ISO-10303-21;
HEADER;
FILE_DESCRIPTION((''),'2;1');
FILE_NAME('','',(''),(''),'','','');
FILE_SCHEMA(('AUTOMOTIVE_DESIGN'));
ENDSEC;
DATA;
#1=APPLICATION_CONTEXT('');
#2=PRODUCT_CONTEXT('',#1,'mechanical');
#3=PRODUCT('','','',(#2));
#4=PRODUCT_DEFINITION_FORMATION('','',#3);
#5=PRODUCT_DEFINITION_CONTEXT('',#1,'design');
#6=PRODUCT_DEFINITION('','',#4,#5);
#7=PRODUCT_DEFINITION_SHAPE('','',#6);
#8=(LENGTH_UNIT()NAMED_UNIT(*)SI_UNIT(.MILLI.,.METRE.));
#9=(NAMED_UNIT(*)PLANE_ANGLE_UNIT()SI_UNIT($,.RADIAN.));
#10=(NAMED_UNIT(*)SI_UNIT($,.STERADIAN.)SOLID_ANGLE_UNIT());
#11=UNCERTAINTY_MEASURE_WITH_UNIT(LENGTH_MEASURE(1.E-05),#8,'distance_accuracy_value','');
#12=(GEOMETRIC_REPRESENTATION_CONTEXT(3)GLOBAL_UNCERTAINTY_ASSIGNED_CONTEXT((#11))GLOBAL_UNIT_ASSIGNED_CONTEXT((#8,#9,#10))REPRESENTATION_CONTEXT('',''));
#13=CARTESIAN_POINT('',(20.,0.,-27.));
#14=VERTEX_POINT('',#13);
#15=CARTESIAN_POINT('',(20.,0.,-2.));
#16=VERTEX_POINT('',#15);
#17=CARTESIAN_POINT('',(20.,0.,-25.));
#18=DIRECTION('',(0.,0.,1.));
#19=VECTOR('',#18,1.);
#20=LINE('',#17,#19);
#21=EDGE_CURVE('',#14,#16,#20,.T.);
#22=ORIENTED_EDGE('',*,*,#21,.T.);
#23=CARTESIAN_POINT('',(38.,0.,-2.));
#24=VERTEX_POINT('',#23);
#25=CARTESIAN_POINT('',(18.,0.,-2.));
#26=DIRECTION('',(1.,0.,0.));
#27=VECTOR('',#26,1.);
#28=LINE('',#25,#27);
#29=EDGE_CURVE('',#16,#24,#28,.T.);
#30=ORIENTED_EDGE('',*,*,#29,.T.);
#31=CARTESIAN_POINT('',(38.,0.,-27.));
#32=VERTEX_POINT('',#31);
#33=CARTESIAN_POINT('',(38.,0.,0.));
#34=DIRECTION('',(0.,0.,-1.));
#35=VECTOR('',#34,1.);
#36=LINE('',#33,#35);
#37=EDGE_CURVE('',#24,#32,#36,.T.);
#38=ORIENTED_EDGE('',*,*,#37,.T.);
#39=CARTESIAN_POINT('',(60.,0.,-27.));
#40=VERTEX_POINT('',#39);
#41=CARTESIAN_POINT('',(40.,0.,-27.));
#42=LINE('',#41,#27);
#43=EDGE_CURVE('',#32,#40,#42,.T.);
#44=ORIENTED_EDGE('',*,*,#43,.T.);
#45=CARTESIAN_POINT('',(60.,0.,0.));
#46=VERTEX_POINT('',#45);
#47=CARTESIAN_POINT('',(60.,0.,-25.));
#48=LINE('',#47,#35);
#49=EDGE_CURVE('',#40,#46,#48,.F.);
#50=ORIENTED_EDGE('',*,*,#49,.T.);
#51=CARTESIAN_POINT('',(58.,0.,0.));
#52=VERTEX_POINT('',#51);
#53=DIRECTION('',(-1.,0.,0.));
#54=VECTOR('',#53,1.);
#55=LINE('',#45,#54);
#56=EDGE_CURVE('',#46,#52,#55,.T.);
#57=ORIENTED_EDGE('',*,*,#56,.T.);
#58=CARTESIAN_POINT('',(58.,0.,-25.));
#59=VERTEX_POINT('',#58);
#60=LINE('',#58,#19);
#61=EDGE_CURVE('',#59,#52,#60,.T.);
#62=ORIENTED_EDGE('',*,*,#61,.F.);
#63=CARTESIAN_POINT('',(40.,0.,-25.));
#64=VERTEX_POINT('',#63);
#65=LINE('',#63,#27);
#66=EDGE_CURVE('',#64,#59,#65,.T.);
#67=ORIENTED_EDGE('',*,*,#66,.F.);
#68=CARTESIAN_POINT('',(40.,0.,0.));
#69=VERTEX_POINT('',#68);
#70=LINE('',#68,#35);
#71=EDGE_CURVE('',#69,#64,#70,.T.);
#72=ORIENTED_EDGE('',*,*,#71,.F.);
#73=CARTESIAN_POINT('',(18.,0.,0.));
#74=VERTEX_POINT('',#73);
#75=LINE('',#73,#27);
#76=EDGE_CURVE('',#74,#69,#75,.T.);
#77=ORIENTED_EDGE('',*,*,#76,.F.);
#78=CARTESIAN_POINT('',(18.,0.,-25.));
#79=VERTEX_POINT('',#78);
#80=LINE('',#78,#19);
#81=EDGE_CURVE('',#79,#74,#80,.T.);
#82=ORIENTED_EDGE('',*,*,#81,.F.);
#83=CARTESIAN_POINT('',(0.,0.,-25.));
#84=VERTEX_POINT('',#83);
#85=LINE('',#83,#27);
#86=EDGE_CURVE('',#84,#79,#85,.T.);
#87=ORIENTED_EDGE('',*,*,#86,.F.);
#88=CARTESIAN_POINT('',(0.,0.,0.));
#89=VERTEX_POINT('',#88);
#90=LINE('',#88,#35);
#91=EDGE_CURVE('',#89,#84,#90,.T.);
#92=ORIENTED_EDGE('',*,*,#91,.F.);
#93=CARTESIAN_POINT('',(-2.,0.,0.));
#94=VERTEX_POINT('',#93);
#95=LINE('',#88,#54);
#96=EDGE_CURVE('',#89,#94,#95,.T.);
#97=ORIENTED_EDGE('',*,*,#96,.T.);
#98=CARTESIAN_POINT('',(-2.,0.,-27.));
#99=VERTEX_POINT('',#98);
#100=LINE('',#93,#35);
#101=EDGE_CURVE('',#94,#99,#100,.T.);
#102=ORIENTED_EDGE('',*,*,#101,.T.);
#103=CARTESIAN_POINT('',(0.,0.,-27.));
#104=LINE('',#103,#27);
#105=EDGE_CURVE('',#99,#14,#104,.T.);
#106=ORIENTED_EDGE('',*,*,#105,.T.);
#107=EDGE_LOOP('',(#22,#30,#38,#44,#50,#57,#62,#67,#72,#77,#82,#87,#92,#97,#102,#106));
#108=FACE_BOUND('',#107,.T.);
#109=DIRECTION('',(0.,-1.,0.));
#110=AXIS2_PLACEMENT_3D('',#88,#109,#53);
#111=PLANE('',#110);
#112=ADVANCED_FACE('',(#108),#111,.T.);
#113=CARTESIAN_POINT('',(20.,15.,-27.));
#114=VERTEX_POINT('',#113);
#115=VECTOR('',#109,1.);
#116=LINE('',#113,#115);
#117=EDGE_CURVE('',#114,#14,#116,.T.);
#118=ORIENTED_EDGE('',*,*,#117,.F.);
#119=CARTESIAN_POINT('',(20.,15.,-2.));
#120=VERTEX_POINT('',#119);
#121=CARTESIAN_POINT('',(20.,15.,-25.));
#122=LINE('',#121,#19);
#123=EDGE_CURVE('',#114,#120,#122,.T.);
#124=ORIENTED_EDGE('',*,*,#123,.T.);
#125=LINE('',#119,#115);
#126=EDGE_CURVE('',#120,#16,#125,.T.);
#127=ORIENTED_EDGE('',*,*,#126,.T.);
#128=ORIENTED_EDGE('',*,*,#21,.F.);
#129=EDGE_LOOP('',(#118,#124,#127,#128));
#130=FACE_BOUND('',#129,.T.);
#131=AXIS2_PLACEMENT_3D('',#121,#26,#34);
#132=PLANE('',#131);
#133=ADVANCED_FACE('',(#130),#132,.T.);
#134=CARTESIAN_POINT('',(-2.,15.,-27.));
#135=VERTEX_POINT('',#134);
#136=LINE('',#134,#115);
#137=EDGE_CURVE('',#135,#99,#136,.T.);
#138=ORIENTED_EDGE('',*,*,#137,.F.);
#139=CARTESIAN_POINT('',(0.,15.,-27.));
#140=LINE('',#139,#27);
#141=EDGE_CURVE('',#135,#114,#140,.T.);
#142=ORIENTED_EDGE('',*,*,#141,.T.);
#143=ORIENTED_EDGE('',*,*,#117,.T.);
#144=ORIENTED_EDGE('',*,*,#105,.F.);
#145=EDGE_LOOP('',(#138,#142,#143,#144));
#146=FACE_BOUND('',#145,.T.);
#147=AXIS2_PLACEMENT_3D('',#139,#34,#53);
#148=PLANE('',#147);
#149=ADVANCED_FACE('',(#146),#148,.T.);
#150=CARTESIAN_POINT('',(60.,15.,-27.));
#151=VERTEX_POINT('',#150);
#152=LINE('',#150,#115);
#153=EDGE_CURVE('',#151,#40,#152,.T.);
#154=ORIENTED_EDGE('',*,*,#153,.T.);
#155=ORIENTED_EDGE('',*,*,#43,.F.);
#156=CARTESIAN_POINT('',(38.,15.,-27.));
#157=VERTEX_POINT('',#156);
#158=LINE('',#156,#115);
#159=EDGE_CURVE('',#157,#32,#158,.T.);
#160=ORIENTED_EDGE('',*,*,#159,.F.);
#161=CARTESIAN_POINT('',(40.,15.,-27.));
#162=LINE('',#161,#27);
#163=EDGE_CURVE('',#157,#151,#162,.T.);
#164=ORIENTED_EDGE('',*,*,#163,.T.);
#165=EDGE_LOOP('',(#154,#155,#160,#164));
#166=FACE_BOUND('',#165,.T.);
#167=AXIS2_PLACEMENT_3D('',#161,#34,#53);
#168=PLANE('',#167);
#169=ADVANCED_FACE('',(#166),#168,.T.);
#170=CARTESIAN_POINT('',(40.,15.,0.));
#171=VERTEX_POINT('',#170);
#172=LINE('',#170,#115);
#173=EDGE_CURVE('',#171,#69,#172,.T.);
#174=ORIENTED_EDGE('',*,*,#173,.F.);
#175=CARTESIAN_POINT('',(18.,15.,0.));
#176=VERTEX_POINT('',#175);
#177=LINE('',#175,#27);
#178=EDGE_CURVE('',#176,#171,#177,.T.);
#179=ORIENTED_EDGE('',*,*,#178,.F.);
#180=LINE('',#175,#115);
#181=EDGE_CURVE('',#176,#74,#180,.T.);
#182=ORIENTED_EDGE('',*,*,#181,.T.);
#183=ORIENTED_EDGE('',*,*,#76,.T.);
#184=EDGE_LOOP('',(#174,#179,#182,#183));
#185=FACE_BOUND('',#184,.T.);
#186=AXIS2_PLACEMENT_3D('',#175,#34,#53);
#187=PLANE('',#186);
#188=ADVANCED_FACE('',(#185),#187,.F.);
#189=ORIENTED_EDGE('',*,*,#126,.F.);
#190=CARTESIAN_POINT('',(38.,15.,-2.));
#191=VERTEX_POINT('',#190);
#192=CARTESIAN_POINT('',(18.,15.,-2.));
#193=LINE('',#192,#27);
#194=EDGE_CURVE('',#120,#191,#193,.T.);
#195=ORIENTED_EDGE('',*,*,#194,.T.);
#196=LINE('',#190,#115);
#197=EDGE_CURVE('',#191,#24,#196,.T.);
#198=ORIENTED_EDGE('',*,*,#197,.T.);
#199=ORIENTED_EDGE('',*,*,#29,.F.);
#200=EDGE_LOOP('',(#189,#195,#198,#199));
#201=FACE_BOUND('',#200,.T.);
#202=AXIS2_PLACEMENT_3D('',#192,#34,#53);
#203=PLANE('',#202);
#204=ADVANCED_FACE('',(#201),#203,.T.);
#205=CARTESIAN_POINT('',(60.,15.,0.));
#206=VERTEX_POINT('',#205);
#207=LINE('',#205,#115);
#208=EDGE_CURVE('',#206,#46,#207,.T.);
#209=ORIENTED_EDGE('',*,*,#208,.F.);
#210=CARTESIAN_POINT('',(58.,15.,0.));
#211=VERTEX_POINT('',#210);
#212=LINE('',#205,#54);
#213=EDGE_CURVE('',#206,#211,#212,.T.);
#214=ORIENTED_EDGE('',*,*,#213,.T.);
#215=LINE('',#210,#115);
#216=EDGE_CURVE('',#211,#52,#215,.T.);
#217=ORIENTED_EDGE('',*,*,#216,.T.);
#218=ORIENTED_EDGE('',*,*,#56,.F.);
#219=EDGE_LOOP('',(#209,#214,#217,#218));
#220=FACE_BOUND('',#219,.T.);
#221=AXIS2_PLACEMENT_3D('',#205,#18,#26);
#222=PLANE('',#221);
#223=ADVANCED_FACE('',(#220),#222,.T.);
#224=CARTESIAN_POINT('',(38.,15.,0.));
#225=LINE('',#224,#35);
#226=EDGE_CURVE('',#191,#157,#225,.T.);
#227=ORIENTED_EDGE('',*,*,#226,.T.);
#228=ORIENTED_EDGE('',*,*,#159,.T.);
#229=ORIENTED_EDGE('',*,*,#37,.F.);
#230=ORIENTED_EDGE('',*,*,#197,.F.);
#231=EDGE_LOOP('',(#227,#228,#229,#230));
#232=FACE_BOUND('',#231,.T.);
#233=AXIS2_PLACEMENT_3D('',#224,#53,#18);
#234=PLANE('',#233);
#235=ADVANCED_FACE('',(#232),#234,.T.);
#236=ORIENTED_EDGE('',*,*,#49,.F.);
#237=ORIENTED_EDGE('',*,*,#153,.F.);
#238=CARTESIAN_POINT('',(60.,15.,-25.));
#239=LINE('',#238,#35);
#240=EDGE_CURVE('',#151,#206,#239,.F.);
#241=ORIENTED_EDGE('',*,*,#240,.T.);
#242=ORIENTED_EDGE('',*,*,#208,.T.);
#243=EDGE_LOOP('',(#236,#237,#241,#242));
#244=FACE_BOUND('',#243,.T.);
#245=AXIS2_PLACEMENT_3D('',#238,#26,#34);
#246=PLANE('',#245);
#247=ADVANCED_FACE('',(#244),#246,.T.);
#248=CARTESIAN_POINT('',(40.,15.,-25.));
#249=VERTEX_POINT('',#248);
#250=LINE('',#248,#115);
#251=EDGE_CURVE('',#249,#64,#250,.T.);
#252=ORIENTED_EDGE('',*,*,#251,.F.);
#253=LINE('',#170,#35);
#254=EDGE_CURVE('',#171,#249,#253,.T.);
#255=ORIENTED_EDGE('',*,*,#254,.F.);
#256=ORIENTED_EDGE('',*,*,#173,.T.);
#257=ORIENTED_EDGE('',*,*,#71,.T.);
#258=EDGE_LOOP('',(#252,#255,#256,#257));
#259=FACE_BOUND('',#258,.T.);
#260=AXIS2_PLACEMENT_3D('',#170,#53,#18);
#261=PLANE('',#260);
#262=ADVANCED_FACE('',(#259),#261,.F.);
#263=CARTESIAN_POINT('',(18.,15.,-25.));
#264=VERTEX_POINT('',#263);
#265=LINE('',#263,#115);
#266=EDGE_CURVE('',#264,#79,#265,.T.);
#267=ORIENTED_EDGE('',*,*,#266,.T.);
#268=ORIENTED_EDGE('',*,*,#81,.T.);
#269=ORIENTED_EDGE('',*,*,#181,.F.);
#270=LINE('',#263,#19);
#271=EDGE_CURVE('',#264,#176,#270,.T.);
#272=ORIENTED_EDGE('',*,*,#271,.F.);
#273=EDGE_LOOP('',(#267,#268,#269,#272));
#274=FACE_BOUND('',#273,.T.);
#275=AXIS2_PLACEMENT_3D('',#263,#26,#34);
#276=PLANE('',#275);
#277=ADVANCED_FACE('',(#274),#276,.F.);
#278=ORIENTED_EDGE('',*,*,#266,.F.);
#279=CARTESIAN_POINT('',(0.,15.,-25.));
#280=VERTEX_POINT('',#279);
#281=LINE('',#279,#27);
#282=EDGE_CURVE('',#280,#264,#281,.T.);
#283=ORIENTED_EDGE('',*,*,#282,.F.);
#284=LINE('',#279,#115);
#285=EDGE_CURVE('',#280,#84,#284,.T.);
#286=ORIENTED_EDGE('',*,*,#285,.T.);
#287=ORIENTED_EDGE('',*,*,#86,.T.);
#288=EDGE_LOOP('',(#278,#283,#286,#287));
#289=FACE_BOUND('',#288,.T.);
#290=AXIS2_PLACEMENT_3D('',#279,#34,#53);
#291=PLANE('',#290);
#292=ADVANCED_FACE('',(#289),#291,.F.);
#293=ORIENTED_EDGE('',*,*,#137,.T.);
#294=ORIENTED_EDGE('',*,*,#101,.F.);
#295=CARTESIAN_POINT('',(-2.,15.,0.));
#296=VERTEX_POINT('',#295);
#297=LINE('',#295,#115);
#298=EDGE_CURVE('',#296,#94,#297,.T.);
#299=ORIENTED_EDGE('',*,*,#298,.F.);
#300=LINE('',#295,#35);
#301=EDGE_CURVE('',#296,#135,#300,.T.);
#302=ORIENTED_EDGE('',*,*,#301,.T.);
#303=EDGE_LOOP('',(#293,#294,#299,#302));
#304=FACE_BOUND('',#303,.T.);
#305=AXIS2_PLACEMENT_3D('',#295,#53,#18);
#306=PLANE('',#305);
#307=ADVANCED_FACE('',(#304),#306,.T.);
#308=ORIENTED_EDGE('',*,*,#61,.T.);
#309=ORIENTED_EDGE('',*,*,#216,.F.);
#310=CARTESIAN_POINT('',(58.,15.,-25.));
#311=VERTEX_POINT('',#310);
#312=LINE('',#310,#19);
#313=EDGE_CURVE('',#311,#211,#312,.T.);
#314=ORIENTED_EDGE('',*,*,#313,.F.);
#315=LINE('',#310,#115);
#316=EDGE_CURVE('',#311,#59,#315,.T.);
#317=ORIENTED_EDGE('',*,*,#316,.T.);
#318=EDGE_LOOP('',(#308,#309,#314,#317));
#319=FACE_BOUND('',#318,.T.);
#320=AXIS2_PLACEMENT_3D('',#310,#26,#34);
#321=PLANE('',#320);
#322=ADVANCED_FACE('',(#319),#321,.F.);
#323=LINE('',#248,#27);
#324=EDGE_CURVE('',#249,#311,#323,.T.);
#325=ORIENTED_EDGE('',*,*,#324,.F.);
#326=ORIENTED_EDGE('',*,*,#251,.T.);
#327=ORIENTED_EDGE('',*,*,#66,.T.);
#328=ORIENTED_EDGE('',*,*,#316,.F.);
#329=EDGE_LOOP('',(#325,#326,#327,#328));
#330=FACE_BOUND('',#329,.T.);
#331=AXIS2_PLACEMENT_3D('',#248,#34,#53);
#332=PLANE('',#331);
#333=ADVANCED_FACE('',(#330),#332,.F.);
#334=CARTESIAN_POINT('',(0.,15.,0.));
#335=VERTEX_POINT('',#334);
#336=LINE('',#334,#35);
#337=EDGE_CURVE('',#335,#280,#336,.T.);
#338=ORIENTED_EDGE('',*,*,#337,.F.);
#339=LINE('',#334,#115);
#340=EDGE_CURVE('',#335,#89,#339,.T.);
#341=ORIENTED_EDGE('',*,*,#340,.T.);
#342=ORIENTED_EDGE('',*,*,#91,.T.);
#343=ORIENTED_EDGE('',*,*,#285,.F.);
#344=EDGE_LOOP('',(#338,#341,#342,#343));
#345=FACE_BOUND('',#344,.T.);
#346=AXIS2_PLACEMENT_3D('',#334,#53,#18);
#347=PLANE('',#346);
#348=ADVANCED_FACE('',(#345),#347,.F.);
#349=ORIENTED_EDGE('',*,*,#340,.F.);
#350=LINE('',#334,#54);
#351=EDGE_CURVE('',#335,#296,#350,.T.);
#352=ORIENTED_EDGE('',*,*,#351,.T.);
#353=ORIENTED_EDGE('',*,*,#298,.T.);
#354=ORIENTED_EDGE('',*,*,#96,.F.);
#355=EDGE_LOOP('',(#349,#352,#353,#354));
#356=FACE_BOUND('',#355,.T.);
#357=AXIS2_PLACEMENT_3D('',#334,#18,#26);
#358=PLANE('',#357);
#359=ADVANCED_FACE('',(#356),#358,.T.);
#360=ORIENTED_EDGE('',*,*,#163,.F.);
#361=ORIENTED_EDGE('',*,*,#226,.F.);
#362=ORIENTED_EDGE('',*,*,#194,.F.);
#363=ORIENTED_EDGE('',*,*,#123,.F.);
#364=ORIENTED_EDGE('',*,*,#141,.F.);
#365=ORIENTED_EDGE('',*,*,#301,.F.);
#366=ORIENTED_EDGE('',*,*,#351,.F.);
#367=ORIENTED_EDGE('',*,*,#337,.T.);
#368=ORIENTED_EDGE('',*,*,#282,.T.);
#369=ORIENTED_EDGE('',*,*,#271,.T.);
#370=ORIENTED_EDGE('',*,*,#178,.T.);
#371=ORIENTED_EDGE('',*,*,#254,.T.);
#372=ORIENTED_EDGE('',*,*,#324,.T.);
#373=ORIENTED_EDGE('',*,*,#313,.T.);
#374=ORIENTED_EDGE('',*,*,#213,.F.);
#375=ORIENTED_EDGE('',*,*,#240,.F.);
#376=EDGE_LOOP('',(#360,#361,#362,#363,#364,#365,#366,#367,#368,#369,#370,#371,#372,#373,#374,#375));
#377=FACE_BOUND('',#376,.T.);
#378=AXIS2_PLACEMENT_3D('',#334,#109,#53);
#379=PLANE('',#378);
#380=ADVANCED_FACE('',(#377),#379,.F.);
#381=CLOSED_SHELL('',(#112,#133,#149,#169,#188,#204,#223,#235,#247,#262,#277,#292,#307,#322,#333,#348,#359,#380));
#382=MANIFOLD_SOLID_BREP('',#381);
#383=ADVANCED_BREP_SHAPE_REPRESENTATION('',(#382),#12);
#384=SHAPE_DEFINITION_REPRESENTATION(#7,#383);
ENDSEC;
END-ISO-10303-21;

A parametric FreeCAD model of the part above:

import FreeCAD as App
import Part
import Sketcher
Q = App.Units.Quantity

doc = App.newDocument("Part")
body = doc.addObject("PartDesign::Body", "Body")

# Sketch on XZ plane
sketch1 = body.newObject("Sketcher::SketchObject", "Sketch")
sketch1.AttachmentSupport = (doc.getObject("XZ_Plane"), [""])
sketch1.MapMode = "FlatFace"
sketch1.addGeometry([
    Part.LineSegment(App.Vector(0, 0, 0), App.Vector(0, -25, 0)),  # 0
    Part.LineSegment(App.Vector(0, -25, 0), App.Vector(18, -25, 0)),  # 1
    Part.LineSegment(App.Vector(18, -25, 0), App.Vector(18, 0, 0)),  # 2
    Part.LineSegment(App.Vector(18, 0, 0), App.Vector(40, 0, 0)),  # 3
    Part.LineSegment(App.Vector(40, 0, 0), App.Vector(40, -25, 0)),  # 4
    Part.LineSegment(App.Vector(40, -25, 0), App.Vector(58, -25, 0)),  # 5
    Part.LineSegment(App.Vector(58, -25, 0), App.Vector(58, 0, 0)),  # 6
    Part.LineSegment(App.Vector(58, 0, 0), App.Vector(60, 0, 0)),  # 7
    Part.LineSegment(App.Vector(60, 0, 0), App.Vector(60, -27, 0)),  # 8
    Part.LineSegment(App.Vector(60, -27, 0), App.Vector(38, -27, 0)),  # 9
    Part.LineSegment(App.Vector(38, -27, 0), App.Vector(38, -2, 0)),  # 10
    Part.LineSegment(App.Vector(38, -2, 0), App.Vector(20, -2, 0)),  # 11
    Part.LineSegment(App.Vector(20, -2, 0), App.Vector(20, -27, 0)),  # 12
    Part.LineSegment(App.Vector(20, -27, 0), App.Vector(-2, -27, 0)),  # 13
    Part.LineSegment(App.Vector(-2, -27, 0), App.Vector(-2, 0, 0)),  # 14
    Part.LineSegment(App.Vector(-2, 0, 0), App.Vector(0, 0, 0)),  # 15
], False)
sketch1.addConstraint([
    Sketcher.Constraint("Coincident", 0, 2, 1, 1),
    Sketcher.Constraint("Coincident", 1, 2, 2, 1),
    Sketcher.Constraint("Coincident", 2, 2, 3, 1),
    Sketcher.Constraint("Coincident", 3, 2, 4, 1),
    Sketcher.Constraint("Coincident", 4, 2, 5, 1),
    Sketcher.Constraint("Coincident", 5, 2, 6, 1),
    Sketcher.Constraint("Coincident", 6, 2, 7, 1),
    Sketcher.Constraint("Coincident", 7, 2, 8, 1),
    Sketcher.Constraint("Coincident", 8, 2, 9, 1),
    Sketcher.Constraint("Coincident", 9, 2, 10, 1),
    Sketcher.Constraint("Coincident", 10, 2, 11, 1),
    Sketcher.Constraint("Coincident", 11, 2, 12, 1),
    Sketcher.Constraint("Coincident", 12, 2, 13, 1),
    Sketcher.Constraint("Coincident", 13, 2, 14, 1),
    Sketcher.Constraint("Coincident", 14, 2, 15, 1),
    Sketcher.Constraint("Coincident", 15, 2, 0, 1),
    Sketcher.Constraint("Vertical", 0),
    Sketcher.Constraint("Horizontal", 1),
    Sketcher.Constraint("Vertical", 2),
    Sketcher.Constraint("Horizontal", 3),
    Sketcher.Constraint("Vertical", 4),
    Sketcher.Constraint("Horizontal", 5),
    Sketcher.Constraint("Vertical", 6),
    Sketcher.Constraint("Horizontal", 7),
    Sketcher.Constraint("Vertical", 8),
    Sketcher.Constraint("Horizontal", 9),
    Sketcher.Constraint("Vertical", 10),
    Sketcher.Constraint("Horizontal", 11),
    Sketcher.Constraint("Vertical", 12),
    Sketcher.Constraint("Horizontal", 13),
    Sketcher.Constraint("Vertical", 14),
    Sketcher.Constraint("Horizontal", 15),
    Sketcher.Constraint("Coincident", 15, 2, -1, 1),
    Sketcher.Constraint("PointOnObject", 2, 2, -1),
    Sketcher.Constraint("PointOnObject", 6, 2, -1),
    Sketcher.Constraint("Horizontal", 1, 2, 4, 2),
    Sketcher.Constraint("Horizontal", 9, 2, 12, 2),
    Sketcher.Constraint("Equal", 1, 5),
    Sketcher.Constraint("Equal", 3, 9),
    Sketcher.Constraint("Equal", 5, 11),
    Sketcher.Constraint("Equal", 9, 13),
    Sketcher.Constraint("Equal", 7, 15),
    Sketcher.Constraint("Equal", 6, 10),
    Sketcher.Constraint("DistanceX", 1, 1, 1, 2, Q("18 mm")),
    Sketcher.Constraint("DistanceX", 3, 1, 3, 2, Q("22 mm")),
    Sketcher.Constraint("DistanceY", 0, 2, 0, 1, Q("25 mm")),
    Sketcher.Constraint("DistanceY", 8, 2, 8, 1, Q("27 mm")),
])
pad1 = body.newObject("PartDesign::Pad", "Pad")
pad1.Profile = sketch1
pad1.Length = 15
pad1.Reversed = True

doc.recompute()
